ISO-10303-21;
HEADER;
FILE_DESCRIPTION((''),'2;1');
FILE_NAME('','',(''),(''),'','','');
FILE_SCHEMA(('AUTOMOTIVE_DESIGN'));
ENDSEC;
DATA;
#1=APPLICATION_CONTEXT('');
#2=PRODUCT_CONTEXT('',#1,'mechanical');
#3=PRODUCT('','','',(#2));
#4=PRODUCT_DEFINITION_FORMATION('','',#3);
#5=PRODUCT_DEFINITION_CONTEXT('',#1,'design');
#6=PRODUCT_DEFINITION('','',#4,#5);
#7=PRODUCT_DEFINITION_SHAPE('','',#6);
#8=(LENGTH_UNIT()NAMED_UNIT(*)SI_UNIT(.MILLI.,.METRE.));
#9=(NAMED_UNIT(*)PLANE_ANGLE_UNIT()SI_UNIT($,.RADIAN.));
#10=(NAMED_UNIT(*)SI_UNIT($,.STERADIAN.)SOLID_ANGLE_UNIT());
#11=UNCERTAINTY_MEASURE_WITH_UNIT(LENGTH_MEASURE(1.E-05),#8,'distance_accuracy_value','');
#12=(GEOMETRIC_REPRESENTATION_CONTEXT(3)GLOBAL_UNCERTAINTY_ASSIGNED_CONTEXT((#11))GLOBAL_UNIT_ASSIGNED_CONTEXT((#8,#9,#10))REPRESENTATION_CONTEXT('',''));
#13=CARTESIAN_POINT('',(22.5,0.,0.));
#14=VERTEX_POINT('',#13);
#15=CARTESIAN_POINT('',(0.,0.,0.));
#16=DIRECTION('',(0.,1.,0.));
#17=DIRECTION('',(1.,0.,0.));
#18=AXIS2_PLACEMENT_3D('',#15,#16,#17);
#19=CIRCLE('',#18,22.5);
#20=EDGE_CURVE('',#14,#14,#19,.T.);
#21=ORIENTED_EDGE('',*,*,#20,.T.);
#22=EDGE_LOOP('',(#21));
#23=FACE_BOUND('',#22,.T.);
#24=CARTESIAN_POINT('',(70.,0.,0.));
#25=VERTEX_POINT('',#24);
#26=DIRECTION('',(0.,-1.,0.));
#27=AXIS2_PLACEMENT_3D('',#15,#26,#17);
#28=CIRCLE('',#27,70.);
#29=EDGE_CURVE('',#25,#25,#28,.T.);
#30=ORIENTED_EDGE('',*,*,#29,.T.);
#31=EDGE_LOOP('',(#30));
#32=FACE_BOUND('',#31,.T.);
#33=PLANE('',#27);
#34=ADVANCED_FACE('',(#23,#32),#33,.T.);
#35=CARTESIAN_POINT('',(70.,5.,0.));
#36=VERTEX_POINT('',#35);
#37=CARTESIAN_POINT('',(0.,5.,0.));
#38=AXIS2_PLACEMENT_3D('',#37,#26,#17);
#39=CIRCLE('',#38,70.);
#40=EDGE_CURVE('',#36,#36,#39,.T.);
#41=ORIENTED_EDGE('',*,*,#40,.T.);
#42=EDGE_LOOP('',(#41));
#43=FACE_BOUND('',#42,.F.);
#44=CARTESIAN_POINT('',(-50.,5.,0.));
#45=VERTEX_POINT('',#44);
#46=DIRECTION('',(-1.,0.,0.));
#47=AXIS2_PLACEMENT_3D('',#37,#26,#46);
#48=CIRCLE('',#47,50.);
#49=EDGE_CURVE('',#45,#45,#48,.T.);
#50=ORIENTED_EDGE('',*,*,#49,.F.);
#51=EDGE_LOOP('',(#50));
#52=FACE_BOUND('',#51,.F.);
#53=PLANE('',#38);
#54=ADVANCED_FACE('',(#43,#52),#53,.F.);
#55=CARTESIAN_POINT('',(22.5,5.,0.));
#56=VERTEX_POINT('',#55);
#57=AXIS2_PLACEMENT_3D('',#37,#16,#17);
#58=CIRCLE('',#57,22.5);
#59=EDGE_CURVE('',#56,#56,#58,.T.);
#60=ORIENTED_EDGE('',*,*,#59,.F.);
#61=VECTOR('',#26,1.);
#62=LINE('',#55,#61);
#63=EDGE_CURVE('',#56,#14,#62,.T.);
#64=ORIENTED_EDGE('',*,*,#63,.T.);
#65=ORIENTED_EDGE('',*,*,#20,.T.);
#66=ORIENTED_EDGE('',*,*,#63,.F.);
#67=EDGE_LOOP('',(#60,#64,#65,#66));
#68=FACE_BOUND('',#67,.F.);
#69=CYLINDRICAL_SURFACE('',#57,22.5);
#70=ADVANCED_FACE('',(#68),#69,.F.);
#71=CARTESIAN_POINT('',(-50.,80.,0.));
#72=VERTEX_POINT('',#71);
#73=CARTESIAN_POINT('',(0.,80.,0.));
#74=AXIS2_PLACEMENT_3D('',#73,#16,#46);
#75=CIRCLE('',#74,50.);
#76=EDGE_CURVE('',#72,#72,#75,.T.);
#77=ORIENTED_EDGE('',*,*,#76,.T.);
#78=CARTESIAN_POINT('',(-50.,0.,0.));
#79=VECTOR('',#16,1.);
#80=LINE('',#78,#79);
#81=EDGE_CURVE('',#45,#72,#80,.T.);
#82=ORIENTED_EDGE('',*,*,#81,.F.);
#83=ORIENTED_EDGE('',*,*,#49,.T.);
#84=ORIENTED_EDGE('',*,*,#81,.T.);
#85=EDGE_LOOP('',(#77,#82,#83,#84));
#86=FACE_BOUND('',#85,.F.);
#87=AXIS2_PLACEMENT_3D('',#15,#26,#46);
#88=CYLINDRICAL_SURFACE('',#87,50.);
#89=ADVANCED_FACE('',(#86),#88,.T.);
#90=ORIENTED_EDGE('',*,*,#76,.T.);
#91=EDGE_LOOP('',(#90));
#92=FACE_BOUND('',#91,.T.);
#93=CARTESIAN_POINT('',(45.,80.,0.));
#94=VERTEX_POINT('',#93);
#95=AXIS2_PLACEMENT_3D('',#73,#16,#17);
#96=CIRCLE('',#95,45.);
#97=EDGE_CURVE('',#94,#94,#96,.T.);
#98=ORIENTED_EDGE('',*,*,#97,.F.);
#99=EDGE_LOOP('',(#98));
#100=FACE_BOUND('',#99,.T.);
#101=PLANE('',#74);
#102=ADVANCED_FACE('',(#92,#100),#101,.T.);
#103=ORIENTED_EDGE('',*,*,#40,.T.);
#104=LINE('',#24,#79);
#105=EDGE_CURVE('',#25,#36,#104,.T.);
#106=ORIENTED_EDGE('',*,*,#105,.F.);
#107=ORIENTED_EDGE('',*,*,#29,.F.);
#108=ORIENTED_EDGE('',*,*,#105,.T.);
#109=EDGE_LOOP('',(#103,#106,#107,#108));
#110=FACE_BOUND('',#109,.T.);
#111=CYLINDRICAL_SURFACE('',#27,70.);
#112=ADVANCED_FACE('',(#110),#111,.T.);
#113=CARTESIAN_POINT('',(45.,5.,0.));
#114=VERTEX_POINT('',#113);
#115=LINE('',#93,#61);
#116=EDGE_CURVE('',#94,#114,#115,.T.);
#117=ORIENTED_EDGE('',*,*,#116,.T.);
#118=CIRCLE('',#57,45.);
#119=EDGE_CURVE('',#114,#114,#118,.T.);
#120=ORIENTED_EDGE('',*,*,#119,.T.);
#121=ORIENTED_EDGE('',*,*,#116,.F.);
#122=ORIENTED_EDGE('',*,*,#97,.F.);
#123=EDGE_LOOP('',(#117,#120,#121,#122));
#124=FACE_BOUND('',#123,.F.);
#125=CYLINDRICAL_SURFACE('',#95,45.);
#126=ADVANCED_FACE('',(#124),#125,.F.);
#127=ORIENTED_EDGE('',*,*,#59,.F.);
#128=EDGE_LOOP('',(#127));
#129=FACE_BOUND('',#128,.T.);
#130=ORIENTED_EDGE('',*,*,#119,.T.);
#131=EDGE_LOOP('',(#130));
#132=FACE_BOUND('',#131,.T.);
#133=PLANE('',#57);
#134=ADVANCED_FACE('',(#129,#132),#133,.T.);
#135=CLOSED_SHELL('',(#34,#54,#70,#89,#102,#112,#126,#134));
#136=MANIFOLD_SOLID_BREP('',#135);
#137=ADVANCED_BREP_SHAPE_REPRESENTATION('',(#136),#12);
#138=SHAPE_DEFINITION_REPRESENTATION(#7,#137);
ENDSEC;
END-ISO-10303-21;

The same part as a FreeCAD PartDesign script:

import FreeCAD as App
import Part
import Sketcher

doc = App.newDocument("Part")
params = doc.addObject("Spreadsheet::Sheet", "Params")
for row, (alias, value) in enumerate([
    ("sketch1_diameter", "100 mm"),
    ("pad1_length", "80 mm"),
    ("sketch2_diameter", "90 mm"),
    ("pocket1_length", "75 mm"),
    ("sketch3_diameter", "45 mm"),
    ("pocket2_length", "75 mm"),
    ("sketch4_diameter", "140 mm"),
    ("pad2_length", "5 mm"),
], start=1):
    params.set(f"A{row}", alias)
    params.set(f"B{row}", "=" + value)
    params.setAlias(f"B{row}", alias)

body = doc.addObject("PartDesign::Body", "Body")

# Sketch on XZ plane
sketch1 = doc.addObject("Sketcher::SketchObject", "Sketch")
body.addObject(sketch1)
sketch1.AttachmentSupport = (doc.XZ_Plane, [""])
sketch1.MapMode = "FlatFace"
sketch1.addGeometry(Part.Circle(App.Vector(0, 0, 0), App.Vector(0, 0, 1), 50), False)
sketch1.addConstraint([
    Sketcher.Constraint("Coincident", 0, 3, -1, 1),
    Sketcher.Constraint("Diameter", 0, 100.0),
])
sketch1.setExpression("Constraints[1]", "Params.sketch1_diameter")
pad1 = doc.addObject("PartDesign::Pad", "Pad")
body.addObject(pad1)
pad1.Profile = sketch1
pad1.setExpression("Length", "Params.pad1_length")
pad1.Reversed = True

# Sketch on XZ plane
sketch2 = doc.addObject("Sketcher::SketchObject", "Sketch001")
body.addObject(sketch2)
sketch2.AttachmentSupport = (doc.XZ_Plane, [""])
sketch2.MapMode = "FlatFace"
sketch2.AttachmentOffset = App.Placement(App.Vector(0, 0, -80), App.Rotation())
sketch2.addGeometry(Part.Circle(App.Vector(0, 0, 0), App.Vector(0, 0, 1), 45), False)
sketch2.addConstraint([
    Sketcher.Constraint("Coincident", 0, 3, -1, 1),
    Sketcher.Constraint("Diameter", 0, 90.0),
])
sketch2.setExpression("Constraints[1]", "Params.sketch2_diameter")
pocket1 = doc.addObject("PartDesign::Pocket", "Pocket")
body.addObject(pocket1)
pocket1.Profile = sketch2
pocket1.setExpression("Length", "Params.pocket1_length")
pocket1.Reversed = True

# Sketch on XZ plane
sketch3 = doc.addObject("Sketcher::SketchObject", "Sketch002")
body.addObject(sketch3)
sketch3.AttachmentSupport = (doc.XZ_Plane, [""])
sketch3.MapMode = "FlatFace"
sketch3.AttachmentOffset = App.Placement(App.Vector(0, 0, -5), App.Rotation())
sketch3.addGeometry(Part.Circle(App.Vector(0, 0, 0), App.Vector(0, 0, 1), 22), False)
sketch3.addConstraint([
    Sketcher.Constraint("Coincident", 0, 3, -1, 1),
    Sketcher.Constraint("Diameter", 0, 45.0),
])
sketch3.setExpression("Constraints[1]", "Params.sketch3_diameter")
pocket2 = doc.addObject("PartDesign::Pocket", "Pocket001")
body.addObject(pocket2)
pocket2.Profile = sketch3
pocket2.setExpression("Length", "Params.pocket2_length")
pocket2.Reversed = True

# Sketch on XZ plane
sketch4 = doc.addObject("Sketcher::SketchObject", "Sketch003")
body.addObject(sketch4)
sketch4.AttachmentSupport = (doc.XZ_Plane, [""])
sketch4.MapMode = "FlatFace"
sketch4.addGeometry([
    Part.Circle(App.Vector(0, 0, 0), App.Vector(0, 0, 1), 70),
    Part.Circle(App.Vector(0, 0, 0), App.Vector(0, 0, 1), 40),
], False)
sketch4.addConstraint([
    Sketcher.Constraint("Coincident", 0, 3, -1, 1),
    Sketcher.Constraint("Coincident", 1, 3, -1, 1),
    Sketcher.Constraint("Diameter", 0, 140.0),
    Sketcher.Constraint("Diameter", 1, 80.4834),
])
sketch4.setExpression("Constraints[2]", "Params.sketch4_diameter")
pad2 = doc.addObject("PartDesign::Pad", "Pad001")
body.addObject(pad2)
pad2.Profile = sketch4
pad2.setExpression("Length", "Params.pad2_length")
pad2.Reversed = True

doc.recompute()
